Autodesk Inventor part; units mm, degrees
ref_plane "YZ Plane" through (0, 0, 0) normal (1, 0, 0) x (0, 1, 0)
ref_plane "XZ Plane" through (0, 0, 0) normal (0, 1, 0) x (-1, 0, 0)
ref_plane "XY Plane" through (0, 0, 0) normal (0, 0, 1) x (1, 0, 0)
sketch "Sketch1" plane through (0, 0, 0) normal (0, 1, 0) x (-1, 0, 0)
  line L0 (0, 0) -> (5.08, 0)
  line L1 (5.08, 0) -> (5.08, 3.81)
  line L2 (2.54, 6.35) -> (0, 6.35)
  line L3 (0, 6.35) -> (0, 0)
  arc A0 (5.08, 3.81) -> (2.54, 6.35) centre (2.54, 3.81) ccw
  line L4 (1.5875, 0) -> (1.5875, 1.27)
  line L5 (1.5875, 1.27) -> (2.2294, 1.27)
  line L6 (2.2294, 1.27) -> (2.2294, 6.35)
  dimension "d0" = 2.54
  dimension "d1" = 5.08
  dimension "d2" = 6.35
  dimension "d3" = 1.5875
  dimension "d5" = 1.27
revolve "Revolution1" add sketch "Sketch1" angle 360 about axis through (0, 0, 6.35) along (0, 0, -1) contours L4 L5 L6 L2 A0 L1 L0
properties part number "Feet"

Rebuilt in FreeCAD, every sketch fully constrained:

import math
import FreeCAD as App
import Part
import Sketcher
from FreeCAD import Vector
Q = App.Units.Quantity

doc = App.newDocument("Part")
body = doc.addObject("PartDesign::Body", "Body")

# Sketch on XZ plane
sketch1 = body.newObject("Sketcher::SketchObject", "Sketch")
sketch1.AttachmentSupport = (doc.getObject("XZ_Plane"), [""])
sketch1.MapMode = "FlatFace"
sketch1.addGeometry([
    Part.LineSegment(Vector(-1.59, 1.27, 0), Vector(-1.59, 0, 0)),  # 0
    Part.LineSegment(Vector(-1.59, 0, 0), Vector(-5.08, 0, 0)),  # 1
    Part.LineSegment(Vector(-5.08, 0, 0), Vector(-5.08, 3.81, 0)),  # 2
    Part.ArcOfCircle(Part.Circle(Vector(-2.54, 3.81, 0), Vector(0, 0, 1), 2.54), math.radians(90), math.radians(180)),  # 3
    Part.LineSegment(Vector(-2.54, 6.35, 0), Vector(-2.23, 6.35, 0)),  # 4
    Part.LineSegment(Vector(-2.23, 6.35, 0), Vector(-2.23, 1.27, 0)),  # 5
    Part.LineSegment(Vector(-2.23, 1.27, 0), Vector(-1.59, 1.27, 0)),  # 6
], False)
sketch1.addConstraint([
    Sketcher.Constraint("Coincident", 0, 2, 1, 1),
    Sketcher.Constraint("Coincident", 1, 2, 2, 1),
    Sketcher.Constraint("Tangent", 2, 2, 3, 2),
    Sketcher.Constraint("Tangent", 3, 1, 4, 1),
    Sketcher.Constraint("Coincident", 4, 2, 5, 1),
    Sketcher.Constraint("Coincident", 5, 2, 6, 1),
    Sketcher.Constraint("Coincident", 6, 2, 0, 1),
    Sketcher.Constraint("Vertical", 0),
    Sketcher.Constraint("Horizontal", 1),
    Sketcher.Constraint("Vertical", 2),
    Sketcher.Constraint("Horizontal", 4),
    Sketcher.Constraint("Vertical", 5),
    Sketcher.Constraint("Horizontal", 6),
    Sketcher.Constraint("PointOnObject", 0, 2, -1),
    Sketcher.Constraint("Radius", 3, Q("0.1 in")),
    Sketcher.Constraint("DistanceY", 5, 2, 5, 1, Q("0.2 in")),
    Sketcher.Constraint("DistanceY", 0, 2, 0, 1, Q("0.05 in")),
    Sketcher.Constraint("DistanceX", 3, 3, -1, 1, Q("0.1 in")),
    Sketcher.Constraint("DistanceX", 0, 2, -1, 1, Q("0.0625 in")),
    Sketcher.Constraint("DistanceX", 4, 1, 4, 2, 0.3106),
])
revolution = body.newObject("PartDesign::Revolution", "Revolution")
revolution.Profile = sketch1
revolution.ReferenceAxis = (sketch1, ["V_Axis"])
revolution.Angle = 360

doc.recompute()
